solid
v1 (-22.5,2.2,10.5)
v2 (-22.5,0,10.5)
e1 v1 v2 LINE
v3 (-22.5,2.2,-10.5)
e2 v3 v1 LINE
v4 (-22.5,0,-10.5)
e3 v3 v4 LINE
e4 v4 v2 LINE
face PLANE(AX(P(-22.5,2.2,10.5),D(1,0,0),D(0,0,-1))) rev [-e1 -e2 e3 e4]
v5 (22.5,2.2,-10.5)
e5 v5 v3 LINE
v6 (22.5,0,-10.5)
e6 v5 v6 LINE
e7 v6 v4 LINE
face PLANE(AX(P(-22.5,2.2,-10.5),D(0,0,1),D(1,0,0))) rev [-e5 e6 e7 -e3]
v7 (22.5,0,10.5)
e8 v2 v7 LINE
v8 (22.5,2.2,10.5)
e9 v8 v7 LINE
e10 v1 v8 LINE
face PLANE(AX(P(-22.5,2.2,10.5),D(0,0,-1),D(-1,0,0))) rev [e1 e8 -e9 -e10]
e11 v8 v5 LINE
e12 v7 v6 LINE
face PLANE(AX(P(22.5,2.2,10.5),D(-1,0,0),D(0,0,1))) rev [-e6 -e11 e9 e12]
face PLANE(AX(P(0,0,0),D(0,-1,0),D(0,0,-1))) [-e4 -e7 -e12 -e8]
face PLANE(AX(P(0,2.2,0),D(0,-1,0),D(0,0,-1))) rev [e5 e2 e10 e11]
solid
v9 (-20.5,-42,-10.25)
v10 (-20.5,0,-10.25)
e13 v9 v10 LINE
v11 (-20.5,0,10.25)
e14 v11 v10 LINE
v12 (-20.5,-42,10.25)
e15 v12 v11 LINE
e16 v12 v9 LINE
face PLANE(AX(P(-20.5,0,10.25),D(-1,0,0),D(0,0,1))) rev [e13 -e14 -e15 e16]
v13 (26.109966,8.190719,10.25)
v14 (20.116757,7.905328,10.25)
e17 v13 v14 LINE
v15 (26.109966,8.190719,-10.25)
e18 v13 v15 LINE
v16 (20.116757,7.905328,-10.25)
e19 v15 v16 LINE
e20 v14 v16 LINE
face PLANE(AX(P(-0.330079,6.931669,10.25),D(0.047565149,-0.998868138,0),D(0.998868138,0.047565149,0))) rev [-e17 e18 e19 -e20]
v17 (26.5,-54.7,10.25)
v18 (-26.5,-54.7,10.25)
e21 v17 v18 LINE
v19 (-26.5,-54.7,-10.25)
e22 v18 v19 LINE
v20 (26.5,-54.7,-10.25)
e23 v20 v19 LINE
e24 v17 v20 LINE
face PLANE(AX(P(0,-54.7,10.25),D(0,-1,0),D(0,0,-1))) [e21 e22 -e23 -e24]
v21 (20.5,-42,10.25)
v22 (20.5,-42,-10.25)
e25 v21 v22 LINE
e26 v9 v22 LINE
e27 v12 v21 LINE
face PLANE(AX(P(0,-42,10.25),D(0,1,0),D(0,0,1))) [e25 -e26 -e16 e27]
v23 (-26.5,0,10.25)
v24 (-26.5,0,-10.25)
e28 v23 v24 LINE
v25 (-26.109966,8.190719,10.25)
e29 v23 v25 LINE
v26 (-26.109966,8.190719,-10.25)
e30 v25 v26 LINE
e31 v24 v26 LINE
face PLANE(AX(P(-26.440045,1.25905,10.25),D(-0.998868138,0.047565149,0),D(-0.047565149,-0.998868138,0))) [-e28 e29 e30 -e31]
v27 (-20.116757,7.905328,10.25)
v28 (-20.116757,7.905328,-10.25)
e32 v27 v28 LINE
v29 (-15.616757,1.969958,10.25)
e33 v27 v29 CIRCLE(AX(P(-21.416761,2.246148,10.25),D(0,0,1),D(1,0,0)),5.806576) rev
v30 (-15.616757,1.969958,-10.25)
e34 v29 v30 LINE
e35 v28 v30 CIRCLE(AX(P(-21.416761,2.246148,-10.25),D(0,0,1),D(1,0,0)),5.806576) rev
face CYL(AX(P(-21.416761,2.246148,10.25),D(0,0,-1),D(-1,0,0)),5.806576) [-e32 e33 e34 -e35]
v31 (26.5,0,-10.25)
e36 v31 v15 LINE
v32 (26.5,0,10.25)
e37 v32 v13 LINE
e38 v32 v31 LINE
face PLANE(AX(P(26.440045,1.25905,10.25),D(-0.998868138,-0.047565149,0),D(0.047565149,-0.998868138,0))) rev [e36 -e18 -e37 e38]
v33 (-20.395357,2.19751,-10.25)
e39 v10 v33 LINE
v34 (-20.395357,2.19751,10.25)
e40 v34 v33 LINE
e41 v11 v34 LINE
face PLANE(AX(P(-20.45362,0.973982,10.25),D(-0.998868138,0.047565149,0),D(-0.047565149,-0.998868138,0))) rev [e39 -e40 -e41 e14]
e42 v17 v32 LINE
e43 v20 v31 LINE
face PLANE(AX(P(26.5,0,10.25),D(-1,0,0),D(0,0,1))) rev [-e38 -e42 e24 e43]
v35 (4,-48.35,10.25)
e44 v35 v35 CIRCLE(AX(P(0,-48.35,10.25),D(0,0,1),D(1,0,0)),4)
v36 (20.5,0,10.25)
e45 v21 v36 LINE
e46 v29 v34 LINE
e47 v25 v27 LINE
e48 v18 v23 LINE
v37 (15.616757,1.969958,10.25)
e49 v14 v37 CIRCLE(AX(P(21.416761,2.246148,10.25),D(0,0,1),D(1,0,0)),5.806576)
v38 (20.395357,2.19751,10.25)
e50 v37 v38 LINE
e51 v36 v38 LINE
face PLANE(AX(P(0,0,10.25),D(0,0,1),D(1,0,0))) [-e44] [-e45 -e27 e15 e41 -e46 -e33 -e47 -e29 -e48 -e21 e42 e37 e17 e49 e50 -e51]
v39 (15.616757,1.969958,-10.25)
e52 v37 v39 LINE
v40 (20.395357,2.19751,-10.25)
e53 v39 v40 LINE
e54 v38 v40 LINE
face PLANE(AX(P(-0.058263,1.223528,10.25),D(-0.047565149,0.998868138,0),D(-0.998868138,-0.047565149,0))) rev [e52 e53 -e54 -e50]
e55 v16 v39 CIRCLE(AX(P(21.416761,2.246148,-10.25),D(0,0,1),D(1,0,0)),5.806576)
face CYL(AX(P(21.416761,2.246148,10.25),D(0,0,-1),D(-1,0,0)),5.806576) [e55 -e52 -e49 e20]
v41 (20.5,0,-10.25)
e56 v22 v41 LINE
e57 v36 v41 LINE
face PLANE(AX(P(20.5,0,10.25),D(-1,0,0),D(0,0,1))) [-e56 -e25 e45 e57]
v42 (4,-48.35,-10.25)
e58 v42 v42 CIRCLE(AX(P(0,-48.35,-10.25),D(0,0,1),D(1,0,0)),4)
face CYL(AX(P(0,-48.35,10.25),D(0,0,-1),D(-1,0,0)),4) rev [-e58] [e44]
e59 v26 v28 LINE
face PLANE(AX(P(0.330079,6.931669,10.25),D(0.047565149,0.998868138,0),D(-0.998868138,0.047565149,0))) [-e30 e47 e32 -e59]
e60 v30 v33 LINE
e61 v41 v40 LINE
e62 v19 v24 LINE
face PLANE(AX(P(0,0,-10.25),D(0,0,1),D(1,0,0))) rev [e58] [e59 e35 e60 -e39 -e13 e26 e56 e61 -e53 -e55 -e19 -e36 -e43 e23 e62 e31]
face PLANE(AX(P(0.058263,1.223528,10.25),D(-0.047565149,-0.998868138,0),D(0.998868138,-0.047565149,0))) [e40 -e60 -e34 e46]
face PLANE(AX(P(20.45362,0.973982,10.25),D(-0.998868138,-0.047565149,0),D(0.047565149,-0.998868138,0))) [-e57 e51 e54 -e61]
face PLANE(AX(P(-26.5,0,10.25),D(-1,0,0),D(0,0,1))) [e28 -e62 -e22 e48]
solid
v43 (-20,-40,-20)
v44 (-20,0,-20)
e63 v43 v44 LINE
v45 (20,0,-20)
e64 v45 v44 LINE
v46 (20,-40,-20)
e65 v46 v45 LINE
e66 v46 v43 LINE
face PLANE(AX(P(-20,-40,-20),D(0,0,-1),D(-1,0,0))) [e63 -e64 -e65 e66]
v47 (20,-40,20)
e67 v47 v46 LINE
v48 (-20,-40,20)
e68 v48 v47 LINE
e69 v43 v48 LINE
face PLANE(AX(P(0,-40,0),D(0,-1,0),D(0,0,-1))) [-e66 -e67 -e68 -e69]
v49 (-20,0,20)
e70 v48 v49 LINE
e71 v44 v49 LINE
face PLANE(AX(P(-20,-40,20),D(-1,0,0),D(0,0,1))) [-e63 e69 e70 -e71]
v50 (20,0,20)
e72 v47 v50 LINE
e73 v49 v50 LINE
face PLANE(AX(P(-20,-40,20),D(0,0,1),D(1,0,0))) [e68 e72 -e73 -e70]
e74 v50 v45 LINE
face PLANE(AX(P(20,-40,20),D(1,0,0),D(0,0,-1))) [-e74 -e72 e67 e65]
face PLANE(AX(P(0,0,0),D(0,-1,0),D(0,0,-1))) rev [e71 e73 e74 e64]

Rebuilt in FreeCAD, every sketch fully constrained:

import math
import FreeCAD as App
import Part
import Sketcher
Q = App.Units.Quantity

doc = App.newDocument("Part")
params = doc.addObject("Spreadsheet::Sheet", "Params")
for row, (alias, value) in enumerate([
    ("sketch1_width", "45 mm"),
    ("sketch1_height", "21 mm"),
    ("pad1_length", "2.2 mm"),
    ("sketch2_width", "40 mm"),
    ("pad2_length", "40 mm"),
    ("sketch3_diameter", "8 mm"),
    ("sketch3_width", "41 mm"),
    ("sketch3_width2", "53 mm"),
    ("sketch3_height", "42 mm"),
    ("sketch3_length", "6 mm"),
    ("pad3_length", "20.5 mm"),
], start=1):
    params.set(f"A{row}", alias)
    params.set(f"B{row}", "=" + value)
    params.setAlias(f"B{row}", alias)

body = doc.addObject("PartDesign::Body", "Body")

# Sketch on XZ plane
sketch1 = doc.addObject("Sketcher::SketchObject", "Sketch")
body.addObject(sketch1)
sketch1.AttachmentSupport = (doc.XZ_Plane, [""])
sketch1.MapMode = "FlatFace"
sketch1.addGeometry([
    Part.LineSegment(App.Vector(-22, -10, 0), App.Vector(-22, 10, 0)),
    Part.LineSegment(App.Vector(-22, 10, 0), App.Vector(22, 10, 0)),
    Part.LineSegment(App.Vector(22, 10, 0), App.Vector(22, -10, 0)),
    Part.LineSegment(App.Vector(22, -10, 0), App.Vector(-22, -10, 0)),
], False)
sketch1.addConstraint([
    Sketcher.Constraint("Coincident", 0, 2, 1, 1),
    Sketcher.Constraint("Coincident", 1, 2, 2, 1),
    Sketcher.Constraint("Coincident", 2, 2, 3, 1),
    Sketcher.Constraint("Coincident", 3, 2, 0, 1),
    Sketcher.Constraint("Vertical", 0),
    Sketcher.Constraint("Horizontal", 1),
    Sketcher.Constraint("Vertical", 2),
    Sketcher.Constraint("Horizontal", 3),
    Sketcher.Constraint("Symmetric", 0, 2, 2, 2, -1, 1),
    Sketcher.Constraint("DistanceX", 1, 1, 1, 2, Q("45 mm")),
    Sketcher.Constraint("DistanceY", 0, 1, 0, 2, Q("21 mm")),
])
sketch1.setExpression("Constraints[9]", "Params.sketch1_width")
sketch1.setExpression("Constraints[10]", "Params.sketch1_height")
pad1 = doc.addObject("PartDesign::Pad", "Pad")
body.addObject(pad1)
pad1.Profile = sketch1
pad1.setExpression("Length", "Params.pad1_length")
pad1.Reversed = True
body2 = doc.addObject("PartDesign::Body", "Body001")

# Sketch on XZ plane
sketch2 = doc.addObject("Sketcher::SketchObject", "Sketch001")
body2.addObject(sketch2)
sketch2.AttachmentSupport = (doc.getObject("XZ_Plane001"), [""])
sketch2.MapMode = "FlatFace"
sketch2.addGeometry([
    Part.LineSegment(App.Vector(-20, -20, 0), App.Vector(-20, 20, 0)),
    Part.LineSegment(App.Vector(-20, 20, 0), App.Vector(20, 20, 0)),
    Part.LineSegment(App.Vector(20, 20, 0), App.Vector(20, -20, 0)),
    Part.LineSegment(App.Vector(20, -20, 0), App.Vector(-20, -20, 0)),
], False)
sketch2.addConstraint([
    Sketcher.Constraint("Coincident", 0, 2, 1, 1),
    Sketcher.Constraint("Coincident", 1, 2, 2, 1),
    Sketcher.Constraint("Coincident", 2, 2, 3, 1),
    Sketcher.Constraint("Coincident", 3, 2, 0, 1),
    Sketcher.Constraint("Vertical", 0),
    Sketcher.Constraint("Horizontal", 1),
    Sketcher.Constraint("Vertical", 2),
    Sketcher.Constraint("Horizontal", 3),
    Sketcher.Constraint("Symmetric", 0, 2, 2, 2, -1, 1),
    Sketcher.Constraint("Equal", 3, 0),
    Sketcher.Constraint("DistanceX", 1, 1, 1, 2, Q("40 mm")),
])
sketch2.setExpression("Constraints[10]", "Params.sketch2_width")
pad2 = doc.addObject("PartDesign::Pad", "Pad001")
body2.addObject(pad2)
pad2.Profile = sketch2
pad2.setExpression("Length", "Params.pad2_length")
body3 = doc.addObject("PartDesign::Body", "Body002")

# Sketch on XY plane
sketch3 = doc.addObject("Sketcher::SketchObject", "Sketch002")
body3.addObject(sketch3)
sketch3.AttachmentSupport = (doc.getObject("XY_Plane002"), [""])
sketch3.MapMode = "FlatFace"
sketch3.addGeometry([
    Part.LineSegment(App.Vector(26.5, -54.7, 0), App.Vector(26.5, 0, 0)),  # 0
    Part.LineSegment(App.Vector(26.5, 0, 0), App.Vector(26.1, 8.2, 0)),  # 1
    Part.LineSegment(App.Vector(26.1, 8.2, 0), App.Vector(20.1, 7.9, 0)),  # 2
    Part.ArcOfCircle(Part.Circle(App.Vector(21.4, 2.2, 0), App.Vector(0, 0, 1), 5.8), math.radians(103), math.radians(183)),  # 3
    Part.LineSegment(App.Vector(15.6, 2, 0), App.Vector(20.4, 2.2, 0)),  # 4
    Part.LineSegment(App.Vector(20.4, 2.2, 0), App.Vector(20.5, 0, 0)),  # 5
    Part.LineSegment(App.Vector(20.5, 0, 0), App.Vector(20.5, -42, 0)),  # 6
    Part.LineSegment(App.Vector(20.5, -42, 0), App.Vector(-20.5, -42, 0)),  # 7
    Part.LineSegment(App.Vector(-20.5, -42, 0), App.Vector(-20.5, 0, 0)),  # 8
    Part.LineSegment(App.Vector(-20.5, 0, 0), App.Vector(-20.4, 2.2, 0)),  # 9
    Part.LineSegment(App.Vector(-20.4, 2.2, 0), App.Vector(-15.6, 2, 0)),  # 10
    Part.ArcOfCircle(Part.Circle(App.Vector(-21.4, 2.2, 0), App.Vector(0, 0, 1), 5.8), math.radians(-3), math.radians(77)),  # 11
    Part.LineSegment(App.Vector(-20.1, 7.9, 0), App.Vector(-26.1, 8.2, 0)),  # 12
    Part.LineSegment(App.Vector(-26.1, 8.2, 0), App.Vector(-26.5, 0, 0)),  # 13
    Part.LineSegment(App.Vector(-26.5, 0, 0), App.Vector(-26.5, -54.7, 0)),  # 14
    Part.LineSegment(App.Vector(-26.5, -54.7, 0), App.Vector(26.5, -54.7, 0)),  # 15
    Part.Circle(App.Vector(0, -48.4, 0), App.Vector(0, 0, 1), 4),  # 16
], False)
sketch3.addConstraint([
    Sketcher.Constraint("Coincident", 0, 2, 1, 1),
    Sketcher.Constraint("Coincident", 1, 2, 2, 1),
    Sketcher.Constraint("Coincident", 2, 2, 3, 1),
    Sketcher.Constraint("Coincident", 3, 2, 4, 1),
    Sketcher.Constraint("Coincident", 4, 2, 5, 1),
    Sketcher.Constraint("Coincident", 5, 2, 6, 1),
    Sketcher.Constraint("Coincident", 6, 2, 7, 1),
    Sketcher.Constraint("Coincident", 7, 2, 8, 1),
    Sketcher.Constraint("Coincident", 8, 2, 9, 1),
    Sketcher.Constraint("Coincident", 9, 2, 10, 1),
    Sketcher.Constraint("Coincident", 10, 2, 11, 1),
    Sketcher.Constraint("Coincident", 11, 2, 12, 1),
    Sketcher.Constraint("Coincident", 12, 2, 13, 1),
    Sketcher.Constraint("Coincident", 13, 2, 14, 1),
    Sketcher.Constraint("Coincident", 14, 2, 15, 1),
    Sketcher.Constraint("Coincident", 15, 2, 0, 1),
    Sketcher.Constraint("Vertical", 0),
    Sketcher.Constraint("Vertical", 6),
    Sketcher.Constraint("Horizontal", 7),
    Sketcher.Constraint("Vertical", 8),
    Sketcher.Constraint("Vertical", 14),
    Sketcher.Constraint("Horizontal", 15),
    Sketcher.Constraint("Equal", 3, 11),
    Sketcher.Constraint("Symmetric", 5, 2, 8, 2, -1, 1),
    Sketcher.Constraint("Symmetric", 0, 2, 13, 2, -1, 1),
    Sketcher.Constraint("Symmetric", 3, 3, 11, 3, -2),
    Sketcher.Constraint("Symmetric", 4, 2, 9, 2, -2),
    Sketcher.Constraint("Symmetric", 1, 2, 12, 2, -2),
    Sketcher.Constraint("PointOnObject", 16, 3, -2),
    Sketcher.Constraint("PointOnObject", 0, 2, -1),
    Sketcher.Constraint("PointOnObject", 5, 2, -1),
    Sketcher.Constraint("Perpendicular", 1, 2),
    Sketcher.Constraint("Parallel", 2, 4),
    Sketcher.Constraint("Perpendicular", 4, 5),
    Sketcher.Constraint("Perpendicular", 9, 10),
    Sketcher.Constraint("Parallel", 10, 12),
    Sketcher.Constraint("Diameter", 16, Q("8 mm")),
    Sketcher.Constraint("DistanceX", 7, 2, 7, 1, Q("41 mm")),
    Sketcher.Constraint("DistanceX", 15, 1, 15, 2, Q("53 mm")),
    Sketcher.Constraint("DistanceY", 6, 2, 6, 1, Q("42 mm")),
    Sketcher.Constraint("Distance", 2, Q("6 mm")),
    Sketcher.Constraint("DistanceY", 0, 1, 0, 2, Q("54.7 mm")),
    Sketcher.Constraint("Distance", 1, Q("8.2 mm")),
    Sketcher.Constraint("Distance", 5, Q("2.2 mm")),
    Sketcher.Constraint("DistanceX", 3, 2, 2, 2, Q("4.5 mm")),
    Sketcher.Constraint("DistanceY", 16, 3, -1, 1, Q("48.35 mm")),
    Sketcher.Constraint("Radius", 3, Q("5.806576 mm")),
    Sketcher.Constraint("DistanceX", 3, 2, 4, 2, Q("4.7786 mm")),
])
sketch3.setExpression("Constraints[36]", "Params.sketch3_diameter")
sketch3.setExpression("Constraints[37]", "Params.sketch3_width")
sketch3.setExpression("Constraints[38]", "Params.sketch3_width2")
sketch3.setExpression("Constraints[39]", "Params.sketch3_height")
sketch3.setExpression("Constraints[40]", "Params.sketch3_length")
pad3 = doc.addObject("PartDesign::Pad", "Pad002")
body3.addObject(pad3)
pad3.Profile = sketch3
pad3.setExpression("Length", "Params.pad3_length")
pad3.Midplane = True

doc.recompute()
